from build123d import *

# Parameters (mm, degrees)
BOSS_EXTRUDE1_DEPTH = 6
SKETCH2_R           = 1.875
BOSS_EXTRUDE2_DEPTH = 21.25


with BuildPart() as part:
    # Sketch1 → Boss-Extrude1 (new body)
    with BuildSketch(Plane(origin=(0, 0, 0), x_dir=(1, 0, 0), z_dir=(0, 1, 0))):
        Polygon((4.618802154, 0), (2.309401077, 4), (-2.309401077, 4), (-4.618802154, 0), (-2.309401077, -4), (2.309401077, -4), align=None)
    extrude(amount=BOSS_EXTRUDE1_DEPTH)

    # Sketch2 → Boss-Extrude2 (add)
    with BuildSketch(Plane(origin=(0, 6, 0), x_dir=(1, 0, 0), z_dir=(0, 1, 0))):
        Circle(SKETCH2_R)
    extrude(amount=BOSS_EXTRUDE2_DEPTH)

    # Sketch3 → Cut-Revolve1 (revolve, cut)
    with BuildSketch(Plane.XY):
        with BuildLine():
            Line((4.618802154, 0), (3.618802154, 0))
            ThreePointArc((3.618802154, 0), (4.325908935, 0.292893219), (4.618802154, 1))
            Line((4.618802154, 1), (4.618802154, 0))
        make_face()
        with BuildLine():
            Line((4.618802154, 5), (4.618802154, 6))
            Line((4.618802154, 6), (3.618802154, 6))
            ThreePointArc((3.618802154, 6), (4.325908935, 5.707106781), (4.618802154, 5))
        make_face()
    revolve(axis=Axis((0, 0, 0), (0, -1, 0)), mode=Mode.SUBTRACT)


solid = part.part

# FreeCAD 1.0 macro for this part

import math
import FreeCAD as App
import Part
import Sketcher
from FreeCAD import Vector
Q = App.Units.Quantity


def add_polygon(sketch, points):
    """Adds a closed chain of lines whose ends are joined by coincident constraints."""
    first, n = sketch.GeometryCount, len(points)
    for a, b in zip(points, points[1:] + points[:1]):
        sketch.addGeometry(Part.LineSegment(App.Vector(*a, 0), App.Vector(*b, 0)), False)
    for i in range(n):
        sketch.addConstraint(Sketcher.Constraint("Coincident", first + i, 2, first + (i + 1) % n, 1))

doc = App.newDocument("Part")
body = doc.addObject("PartDesign::Body", "Body")

# Sketch on XZ plane
sketch1 = body.newObject("Sketcher::SketchObject", "Sketch")
sketch1.AttachmentSupport = (doc.getObject("XZ_Plane"), [""])
sketch1.MapMode = "FlatFace"
add_polygon(sketch1, [(4.618802, 0), (2.309401, -4), (-2.309401, -4), (-4.618802, 0), (-2.309401, 4), (2.309401, 4)])  # lines 0-5
sketch1.addConstraint([
    Sketcher.Constraint("Horizontal", 1),
    Sketcher.Constraint("Horizontal", 4),
    Sketcher.Constraint("Symmetric", 0, 2, 3, 2, -1, 1),
    Sketcher.Constraint("Symmetric", 2, 2, 5, 2, -1, 1),
    Sketcher.Constraint("PointOnObject", 2, 2, -1),
    Sketcher.Constraint("Parallel", 2, 5),
    Sketcher.Constraint("Vertical", 1, 2, 3, 2),
    Sketcher.Constraint("Angle", 0, Q("-120 deg")),
    Sketcher.Constraint("DistanceY", 0, 2, -1, 1, Q("4 mm")),
    Sketcher.Constraint("DistanceX", -1, 1, 0, 2, Q("2.309401 mm")),
])
pad1 = body.newObject("PartDesign::Pad", "Pad")
pad1.Profile = sketch1
pad1.Length = 6
pad1.Reversed = True

# Sketch on XZ plane
sketch2 = body.newObject("Sketcher::SketchObject", "Sketch001")
sketch2.AttachmentSupport = (doc.getObject("XZ_Plane"), [""])
sketch2.MapMode = "FlatFace"
sketch2.AttachmentOffset = App.Placement(Vector(0, 0, -6), App.Rotation())
sketch2.addGeometry(Part.Circle(Vector(0, 0, 0), Vector(0, 0, 1), 1.875), False)
sketch2.addConstraint([
    Sketcher.Constraint("Coincident", 0, 3, -1, 1),
    Sketcher.Constraint("Diameter", 0, Q("3.75 mm")),
])
pad2 = body.newObject("PartDesign::Pad", "Pad001")
pad2.Profile = sketch2
pad2.Length = 21.25
pad2.Reversed = True

# Sketch on XY plane
sketch3 = body.newObject("Sketcher::SketchObject", "Sketch002")
sketch3.AttachmentSupport = (doc.getObject("XY_Plane"), [""])
sketch3.MapMode = "FlatFace"
sketch3.addGeometry([
    Part.LineSegment(Vector(3.618802, 0, 0), Vector(4.618802, 0, 0)),  # 0
    Part.LineSegment(Vector(4.618802, 0, 0), Vector(4.618802, 1, 0)),  # 1
    Part.ArcOfCircle(Part.Circle(Vector(3.618802, 1, 0), Vector(0, 0, 1), 1), math.radians(-90), math.radians(0)),  # 2
    Part.LineSegment(Vector(4.618802, 5, 0), Vector(4.618802, 6, 0)),  # 3
    Part.LineSegment(Vector(4.618802, 6, 0), Vector(3.618802, 6, 0)),  # 4
    Part.ArcOfCircle(Part.Circle(Vector(3.618802, 5, 0), Vector(0, 0, 1), 1), math.radians(0), math.radians(90)),  # 5
], False)
sketch3.addConstraint([
    Sketcher.Constraint("Coincident", 0, 2, 1, 1),
    Sketcher.Constraint("Tangent", 1, 2, 2, 2),
    Sketcher.Constraint("Tangent", 2, 1, 0, 1),
    Sketcher.Constraint("Coincident", 3, 2, 4, 1),
    Sketcher.Constraint("Tangent", 4, 2, 5, 2),
    Sketcher.Constraint("Tangent", 5, 1, 3, 1),
    Sketcher.Constraint("Horizontal", 0),
    Sketcher.Constraint("Vertical", 1),
    Sketcher.Constraint("Vertical", 3),
    Sketcher.Constraint("Horizontal", 4),
    Sketcher.Constraint("Equal", 2, 5),
    Sketcher.Constraint("PointOnObject", 0, 2, -1),
    Sketcher.Constraint("Vertical", 2, 3, 5, 3),
    Sketcher.Constraint("Radius", 2, Q("1 mm")),
    Sketcher.Constraint("DistanceY", -1, 1, 5, 3, Q("5 mm")),
    Sketcher.Constraint("DistanceX", -1, 1, 2, 3, Q("3.618802 mm")),
])
groove = body.newObject("PartDesign::Groove", "Groove")
groove.Profile = sketch3
groove.ReferenceAxis = (sketch3, ["V_Axis"])
groove.Angle = 360

doc.recompute()
